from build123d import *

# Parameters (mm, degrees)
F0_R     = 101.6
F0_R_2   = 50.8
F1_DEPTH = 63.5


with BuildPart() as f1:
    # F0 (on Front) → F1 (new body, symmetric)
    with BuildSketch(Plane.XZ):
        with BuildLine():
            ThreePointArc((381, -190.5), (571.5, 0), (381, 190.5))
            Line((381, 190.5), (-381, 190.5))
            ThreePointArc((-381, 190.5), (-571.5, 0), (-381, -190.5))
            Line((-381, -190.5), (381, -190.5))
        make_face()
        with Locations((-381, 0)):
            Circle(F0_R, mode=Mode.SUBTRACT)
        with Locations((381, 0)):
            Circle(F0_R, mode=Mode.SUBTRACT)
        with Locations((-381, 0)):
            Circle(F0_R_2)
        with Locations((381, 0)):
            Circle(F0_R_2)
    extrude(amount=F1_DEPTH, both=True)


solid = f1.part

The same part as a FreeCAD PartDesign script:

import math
import FreeCAD as App
import Part
import Sketcher
from FreeCAD import Vector
Q = App.Units.Quantity

doc = App.newDocument("Part")
params = doc.addObject("Spreadsheet::Sheet", "Params")
for row, (alias, value) in enumerate([
    ("sketch1_diameter", "8 in"),
    ("sketch1_diameter2", "4 in"),
    ("sketch1_radius", "7.5 in"),
    ("sketch1_width", "30 in"),
    ("pad1_length", "5 in"),
], start=1):
    params.set(f"A{row}", alias)
    params.set(f"B{row}", "=" + value)
    params.setAlias(f"B{row}", alias)

body = doc.addObject("PartDesign::Body", "Body")
body.AllowCompound = True

sketch1 = body.newObject("Sketcher::SketchObject", "Sketch")
sketch1.AttachmentSupport = (doc.getObject("XZ_Plane"), [""])
sketch1.MapMode = "FlatFace"
sketch1.addGeometry([
    Part.ArcOfCircle(Part.Circle(Vector(381, 0, 0), Vector(0, 0, 1), 190), math.radians(-90), math.radians(90)),
    Part.LineSegment(Vector(381, 190, 0), Vector(-381, 190, 0)),
    Part.ArcOfCircle(Part.Circle(Vector(-381, 0, 0), Vector(0, 0, 1), 190), math.radians(90), math.radians(270)),
    Part.LineSegment(Vector(-381, -190, 0), Vector(381, -190, 0)),
    Part.Circle(Vector(-381, 0, 0), Vector(0, 0, 1), 102),
    Part.Circle(Vector(381, 0, 0), Vector(0, 0, 1), 102),
    Part.Circle(Vector(-381, 0, 0), Vector(0, 0, 1), 51),
    Part.Circle(Vector(381, 0, 0), Vector(0, 0, 1), 51),
], False)
sketch1.addConstraint([
    Sketcher.Constraint("Tangent", 0, 2, 1, 1),
    Sketcher.Constraint("Tangent", 1, 2, 2, 1),
    Sketcher.Constraint("Tangent", 2, 2, 3, 1),
    Sketcher.Constraint("Tangent", 3, 2, 0, 1),
    Sketcher.Constraint("Horizontal", 1),
    Sketcher.Constraint("Horizontal", 3),
    Sketcher.Constraint("Coincident", 4, 3, 2, 3),
    Sketcher.Constraint("Coincident", 5, 3, 0, 3),
    Sketcher.Constraint("Coincident", 6, 3, 2, 3),
    Sketcher.Constraint("Coincident", 7, 3, 0, 3),
    Sketcher.Constraint("Equal", 4, 5),
    Sketcher.Constraint("Equal", 6, 7),
    Sketcher.Constraint("Symmetric", 0, 3, 2, 3, -1, 1),
    Sketcher.Constraint("Diameter", 4, Q("8 in")),
    Sketcher.Constraint("Diameter", 6, Q("4 in")),
    Sketcher.Constraint("Radius", 0, Q("7.5 in")),
    Sketcher.Constraint("DistanceX", 1, 2, 1, 1, Q("30 in")),
])
sketch1.setExpression("Constraints[13]", "Params.sketch1_diameter")
sketch1.setExpression("Constraints[14]", "Params.sketch1_diameter2")
sketch1.setExpression("Constraints[15]", "Params.sketch1_radius")
sketch1.setExpression("Constraints[16]", "Params.sketch1_width")
pad1 = body.newObject("PartDesign::Pad", "Pad")
pad1.Profile = sketch1
pad1.setExpression("Length", "Params.pad1_length")
pad1.Midplane = True

doc.recompute()
